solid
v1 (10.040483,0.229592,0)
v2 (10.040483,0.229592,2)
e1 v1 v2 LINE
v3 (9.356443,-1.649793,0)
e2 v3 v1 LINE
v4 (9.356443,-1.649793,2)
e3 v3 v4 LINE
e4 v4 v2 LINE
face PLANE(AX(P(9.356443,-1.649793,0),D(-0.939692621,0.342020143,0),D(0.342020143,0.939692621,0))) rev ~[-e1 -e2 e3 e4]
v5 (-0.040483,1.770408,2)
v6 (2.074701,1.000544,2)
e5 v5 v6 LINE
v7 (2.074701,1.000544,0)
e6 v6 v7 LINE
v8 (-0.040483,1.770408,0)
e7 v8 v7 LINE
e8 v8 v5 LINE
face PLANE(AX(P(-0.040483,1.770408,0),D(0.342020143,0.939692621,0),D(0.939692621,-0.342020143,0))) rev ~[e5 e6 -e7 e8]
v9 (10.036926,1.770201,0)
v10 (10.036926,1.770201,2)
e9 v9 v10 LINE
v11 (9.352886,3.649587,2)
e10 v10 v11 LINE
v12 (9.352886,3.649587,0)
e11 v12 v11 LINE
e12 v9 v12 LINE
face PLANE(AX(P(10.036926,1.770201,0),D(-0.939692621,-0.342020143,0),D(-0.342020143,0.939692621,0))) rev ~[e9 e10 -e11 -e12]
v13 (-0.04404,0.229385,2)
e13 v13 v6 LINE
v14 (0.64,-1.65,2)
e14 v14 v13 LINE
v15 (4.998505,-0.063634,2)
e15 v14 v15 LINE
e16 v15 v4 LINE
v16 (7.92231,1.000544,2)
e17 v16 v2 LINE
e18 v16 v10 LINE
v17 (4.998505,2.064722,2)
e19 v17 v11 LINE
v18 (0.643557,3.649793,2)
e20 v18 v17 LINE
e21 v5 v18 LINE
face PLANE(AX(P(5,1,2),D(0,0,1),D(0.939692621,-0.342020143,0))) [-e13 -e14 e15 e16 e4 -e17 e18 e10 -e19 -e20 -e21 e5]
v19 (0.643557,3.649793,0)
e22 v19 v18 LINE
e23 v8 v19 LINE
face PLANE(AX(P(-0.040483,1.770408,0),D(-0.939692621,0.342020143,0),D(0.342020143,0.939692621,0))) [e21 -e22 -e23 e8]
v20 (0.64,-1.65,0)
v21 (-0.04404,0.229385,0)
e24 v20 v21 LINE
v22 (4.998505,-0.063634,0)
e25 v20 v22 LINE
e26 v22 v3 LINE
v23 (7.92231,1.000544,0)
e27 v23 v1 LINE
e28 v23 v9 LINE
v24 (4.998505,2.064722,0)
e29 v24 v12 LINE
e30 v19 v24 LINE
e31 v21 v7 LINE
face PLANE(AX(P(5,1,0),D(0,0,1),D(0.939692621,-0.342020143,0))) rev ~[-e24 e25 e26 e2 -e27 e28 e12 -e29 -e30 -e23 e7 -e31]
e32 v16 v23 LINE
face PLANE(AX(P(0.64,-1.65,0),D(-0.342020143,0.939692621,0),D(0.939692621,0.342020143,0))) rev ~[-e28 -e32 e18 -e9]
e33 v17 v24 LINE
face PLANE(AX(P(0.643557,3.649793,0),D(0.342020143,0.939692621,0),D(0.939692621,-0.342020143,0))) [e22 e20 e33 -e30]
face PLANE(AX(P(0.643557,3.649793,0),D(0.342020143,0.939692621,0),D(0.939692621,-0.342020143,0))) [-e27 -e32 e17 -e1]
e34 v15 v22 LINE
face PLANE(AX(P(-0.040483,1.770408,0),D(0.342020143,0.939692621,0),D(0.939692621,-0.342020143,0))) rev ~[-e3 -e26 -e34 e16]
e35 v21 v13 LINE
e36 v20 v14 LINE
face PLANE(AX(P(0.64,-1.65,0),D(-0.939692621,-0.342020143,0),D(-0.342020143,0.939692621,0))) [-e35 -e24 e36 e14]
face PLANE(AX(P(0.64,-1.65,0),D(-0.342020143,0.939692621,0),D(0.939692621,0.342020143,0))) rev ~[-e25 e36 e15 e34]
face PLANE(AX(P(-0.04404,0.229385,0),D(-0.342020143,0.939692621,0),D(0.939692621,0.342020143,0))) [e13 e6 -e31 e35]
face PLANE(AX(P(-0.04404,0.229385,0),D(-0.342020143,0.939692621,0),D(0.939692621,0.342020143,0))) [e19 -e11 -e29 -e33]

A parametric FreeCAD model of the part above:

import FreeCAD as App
import Part
import Sketcher

doc = App.newDocument("Part")
body = doc.addObject("PartDesign::Body", "Body")

# Sketch on XY plane
sketch1 = body.newObject("Sketcher::SketchObject", "Sketch")
sketch1.AttachmentSupport = (doc.getObject("XY_Plane"), [""])
sketch1.MapMode = "FlatFace"
sketch1.addGeometry([
    Part.LineSegment(App.Vector(0, 2, 0), App.Vector(0, 0, 0)),
    Part.LineSegment(App.Vector(0, 0, 0), App.Vector(10, 0, 0)),
    Part.LineSegment(App.Vector(10, 0, 0), App.Vector(10, 2, 0)),
    Part.LineSegment(App.Vector(10, 2, 0), App.Vector(0, 2, 0)),
], False)
sketch1.addConstraint([
    Sketcher.Constraint("Coincident", 0, 2, 1, 1),
    Sketcher.Constraint("Coincident", 1, 2, 2, 1),
    Sketcher.Constraint("Coincident", 2, 2, 3, 1),
    Sketcher.Constraint("Coincident", 3, 2, 0, 1),
    Sketcher.Constraint("Vertical", 0),
    Sketcher.Constraint("Horizontal", 1),
    Sketcher.Constraint("Vertical", 2),
    Sketcher.Constraint("Horizontal", 3),
    Sketcher.Constraint("Coincident", 0, 2, -1, 1),
    Sketcher.Constraint("DistanceX", 1, 1, 1, 2, 10.0),
    Sketcher.Constraint("DistanceY", 0, 2, 0, 1, 2.0),
])
pad1 = body.newObject("PartDesign::Pad", "Pad")
pad1.Profile = sketch1
pad1.Length = 2
body2 = doc.addObject("PartDesign::Body", "Body001")
doc.recompute()

body.Placement = App.Placement(App.Vector(-0.040483, 1.770408, 0), App.Rotation(App.Vector(0, 0, 1), 340))
boolean = body2.newObject("PartDesign::Boolean", "Boolean")
boolean.Type = "Fuse"
boolean.addObjects([body])
body3 = doc.addObject("PartDesign::Body", "Body002")

# Sketch on XY plane
sketch2 = body3.newObject("Sketcher::SketchObject", "Sketch001")
sketch2.AttachmentSupport = (doc.getObject("XY_Plane002"), [""])
sketch2.MapMode = "FlatFace"
sketch2.addGeometry([
    Part.LineSegment(App.Vector(0, 2, 0), App.Vector(0, 0, 0)),
    Part.LineSegment(App.Vector(0, 0, 0), App.Vector(10, 0, 0)),
    Part.LineSegment(App.Vector(10, 0, 0), App.Vector(10, 2, 0)),
    Part.LineSegment(App.Vector(10, 2, 0), App.Vector(0, 2, 0)),
], False)
sketch2.addConstraint([
    Sketcher.Constraint("Coincident", 0, 2, 1, 1),
    Sketcher.Constraint("Coincident", 1, 2, 2, 1),
    Sketcher.Constraint("Coincident", 2, 2, 3, 1),
    Sketcher.Constraint("Coincident", 3, 2, 0, 1),
    Sketcher.Constraint("Vertical", 0),
    Sketcher.Constraint("Horizontal", 1),
    Sketcher.Constraint("Vertical", 2),
    Sketcher.Constraint("Horizontal", 3),
    Sketcher.Constraint("Coincident", 0, 2, -1, 1),
    Sketcher.Constraint("DistanceX", 1, 1, 1, 2, 10.0),
    Sketcher.Constraint("DistanceY", 0, 2, 0, 1, 2.0),
])
pad2 = body3.newObject("PartDesign::Pad", "Pad001")
pad2.Profile = sketch2
pad2.Length = 2
body4 = doc.addObject("PartDesign::Body", "Body003")
doc.recompute()

body3.Placement = App.Placement(App.Vector(0.64, -1.65, 0), App.Rotation(App.Vector(0, 0, 1), 20))
boolean2 = body4.newObject("PartDesign::Boolean", "Boolean001")
boolean2.Type = "Fuse"
boolean2.addObjects([body3])
doc.recompute()

boolean3 = body4.newObject("PartDesign::Boolean", "Boolean002")
boolean3.Type = "Fuse"
boolean3.addObjects([body2])

doc.recompute()
